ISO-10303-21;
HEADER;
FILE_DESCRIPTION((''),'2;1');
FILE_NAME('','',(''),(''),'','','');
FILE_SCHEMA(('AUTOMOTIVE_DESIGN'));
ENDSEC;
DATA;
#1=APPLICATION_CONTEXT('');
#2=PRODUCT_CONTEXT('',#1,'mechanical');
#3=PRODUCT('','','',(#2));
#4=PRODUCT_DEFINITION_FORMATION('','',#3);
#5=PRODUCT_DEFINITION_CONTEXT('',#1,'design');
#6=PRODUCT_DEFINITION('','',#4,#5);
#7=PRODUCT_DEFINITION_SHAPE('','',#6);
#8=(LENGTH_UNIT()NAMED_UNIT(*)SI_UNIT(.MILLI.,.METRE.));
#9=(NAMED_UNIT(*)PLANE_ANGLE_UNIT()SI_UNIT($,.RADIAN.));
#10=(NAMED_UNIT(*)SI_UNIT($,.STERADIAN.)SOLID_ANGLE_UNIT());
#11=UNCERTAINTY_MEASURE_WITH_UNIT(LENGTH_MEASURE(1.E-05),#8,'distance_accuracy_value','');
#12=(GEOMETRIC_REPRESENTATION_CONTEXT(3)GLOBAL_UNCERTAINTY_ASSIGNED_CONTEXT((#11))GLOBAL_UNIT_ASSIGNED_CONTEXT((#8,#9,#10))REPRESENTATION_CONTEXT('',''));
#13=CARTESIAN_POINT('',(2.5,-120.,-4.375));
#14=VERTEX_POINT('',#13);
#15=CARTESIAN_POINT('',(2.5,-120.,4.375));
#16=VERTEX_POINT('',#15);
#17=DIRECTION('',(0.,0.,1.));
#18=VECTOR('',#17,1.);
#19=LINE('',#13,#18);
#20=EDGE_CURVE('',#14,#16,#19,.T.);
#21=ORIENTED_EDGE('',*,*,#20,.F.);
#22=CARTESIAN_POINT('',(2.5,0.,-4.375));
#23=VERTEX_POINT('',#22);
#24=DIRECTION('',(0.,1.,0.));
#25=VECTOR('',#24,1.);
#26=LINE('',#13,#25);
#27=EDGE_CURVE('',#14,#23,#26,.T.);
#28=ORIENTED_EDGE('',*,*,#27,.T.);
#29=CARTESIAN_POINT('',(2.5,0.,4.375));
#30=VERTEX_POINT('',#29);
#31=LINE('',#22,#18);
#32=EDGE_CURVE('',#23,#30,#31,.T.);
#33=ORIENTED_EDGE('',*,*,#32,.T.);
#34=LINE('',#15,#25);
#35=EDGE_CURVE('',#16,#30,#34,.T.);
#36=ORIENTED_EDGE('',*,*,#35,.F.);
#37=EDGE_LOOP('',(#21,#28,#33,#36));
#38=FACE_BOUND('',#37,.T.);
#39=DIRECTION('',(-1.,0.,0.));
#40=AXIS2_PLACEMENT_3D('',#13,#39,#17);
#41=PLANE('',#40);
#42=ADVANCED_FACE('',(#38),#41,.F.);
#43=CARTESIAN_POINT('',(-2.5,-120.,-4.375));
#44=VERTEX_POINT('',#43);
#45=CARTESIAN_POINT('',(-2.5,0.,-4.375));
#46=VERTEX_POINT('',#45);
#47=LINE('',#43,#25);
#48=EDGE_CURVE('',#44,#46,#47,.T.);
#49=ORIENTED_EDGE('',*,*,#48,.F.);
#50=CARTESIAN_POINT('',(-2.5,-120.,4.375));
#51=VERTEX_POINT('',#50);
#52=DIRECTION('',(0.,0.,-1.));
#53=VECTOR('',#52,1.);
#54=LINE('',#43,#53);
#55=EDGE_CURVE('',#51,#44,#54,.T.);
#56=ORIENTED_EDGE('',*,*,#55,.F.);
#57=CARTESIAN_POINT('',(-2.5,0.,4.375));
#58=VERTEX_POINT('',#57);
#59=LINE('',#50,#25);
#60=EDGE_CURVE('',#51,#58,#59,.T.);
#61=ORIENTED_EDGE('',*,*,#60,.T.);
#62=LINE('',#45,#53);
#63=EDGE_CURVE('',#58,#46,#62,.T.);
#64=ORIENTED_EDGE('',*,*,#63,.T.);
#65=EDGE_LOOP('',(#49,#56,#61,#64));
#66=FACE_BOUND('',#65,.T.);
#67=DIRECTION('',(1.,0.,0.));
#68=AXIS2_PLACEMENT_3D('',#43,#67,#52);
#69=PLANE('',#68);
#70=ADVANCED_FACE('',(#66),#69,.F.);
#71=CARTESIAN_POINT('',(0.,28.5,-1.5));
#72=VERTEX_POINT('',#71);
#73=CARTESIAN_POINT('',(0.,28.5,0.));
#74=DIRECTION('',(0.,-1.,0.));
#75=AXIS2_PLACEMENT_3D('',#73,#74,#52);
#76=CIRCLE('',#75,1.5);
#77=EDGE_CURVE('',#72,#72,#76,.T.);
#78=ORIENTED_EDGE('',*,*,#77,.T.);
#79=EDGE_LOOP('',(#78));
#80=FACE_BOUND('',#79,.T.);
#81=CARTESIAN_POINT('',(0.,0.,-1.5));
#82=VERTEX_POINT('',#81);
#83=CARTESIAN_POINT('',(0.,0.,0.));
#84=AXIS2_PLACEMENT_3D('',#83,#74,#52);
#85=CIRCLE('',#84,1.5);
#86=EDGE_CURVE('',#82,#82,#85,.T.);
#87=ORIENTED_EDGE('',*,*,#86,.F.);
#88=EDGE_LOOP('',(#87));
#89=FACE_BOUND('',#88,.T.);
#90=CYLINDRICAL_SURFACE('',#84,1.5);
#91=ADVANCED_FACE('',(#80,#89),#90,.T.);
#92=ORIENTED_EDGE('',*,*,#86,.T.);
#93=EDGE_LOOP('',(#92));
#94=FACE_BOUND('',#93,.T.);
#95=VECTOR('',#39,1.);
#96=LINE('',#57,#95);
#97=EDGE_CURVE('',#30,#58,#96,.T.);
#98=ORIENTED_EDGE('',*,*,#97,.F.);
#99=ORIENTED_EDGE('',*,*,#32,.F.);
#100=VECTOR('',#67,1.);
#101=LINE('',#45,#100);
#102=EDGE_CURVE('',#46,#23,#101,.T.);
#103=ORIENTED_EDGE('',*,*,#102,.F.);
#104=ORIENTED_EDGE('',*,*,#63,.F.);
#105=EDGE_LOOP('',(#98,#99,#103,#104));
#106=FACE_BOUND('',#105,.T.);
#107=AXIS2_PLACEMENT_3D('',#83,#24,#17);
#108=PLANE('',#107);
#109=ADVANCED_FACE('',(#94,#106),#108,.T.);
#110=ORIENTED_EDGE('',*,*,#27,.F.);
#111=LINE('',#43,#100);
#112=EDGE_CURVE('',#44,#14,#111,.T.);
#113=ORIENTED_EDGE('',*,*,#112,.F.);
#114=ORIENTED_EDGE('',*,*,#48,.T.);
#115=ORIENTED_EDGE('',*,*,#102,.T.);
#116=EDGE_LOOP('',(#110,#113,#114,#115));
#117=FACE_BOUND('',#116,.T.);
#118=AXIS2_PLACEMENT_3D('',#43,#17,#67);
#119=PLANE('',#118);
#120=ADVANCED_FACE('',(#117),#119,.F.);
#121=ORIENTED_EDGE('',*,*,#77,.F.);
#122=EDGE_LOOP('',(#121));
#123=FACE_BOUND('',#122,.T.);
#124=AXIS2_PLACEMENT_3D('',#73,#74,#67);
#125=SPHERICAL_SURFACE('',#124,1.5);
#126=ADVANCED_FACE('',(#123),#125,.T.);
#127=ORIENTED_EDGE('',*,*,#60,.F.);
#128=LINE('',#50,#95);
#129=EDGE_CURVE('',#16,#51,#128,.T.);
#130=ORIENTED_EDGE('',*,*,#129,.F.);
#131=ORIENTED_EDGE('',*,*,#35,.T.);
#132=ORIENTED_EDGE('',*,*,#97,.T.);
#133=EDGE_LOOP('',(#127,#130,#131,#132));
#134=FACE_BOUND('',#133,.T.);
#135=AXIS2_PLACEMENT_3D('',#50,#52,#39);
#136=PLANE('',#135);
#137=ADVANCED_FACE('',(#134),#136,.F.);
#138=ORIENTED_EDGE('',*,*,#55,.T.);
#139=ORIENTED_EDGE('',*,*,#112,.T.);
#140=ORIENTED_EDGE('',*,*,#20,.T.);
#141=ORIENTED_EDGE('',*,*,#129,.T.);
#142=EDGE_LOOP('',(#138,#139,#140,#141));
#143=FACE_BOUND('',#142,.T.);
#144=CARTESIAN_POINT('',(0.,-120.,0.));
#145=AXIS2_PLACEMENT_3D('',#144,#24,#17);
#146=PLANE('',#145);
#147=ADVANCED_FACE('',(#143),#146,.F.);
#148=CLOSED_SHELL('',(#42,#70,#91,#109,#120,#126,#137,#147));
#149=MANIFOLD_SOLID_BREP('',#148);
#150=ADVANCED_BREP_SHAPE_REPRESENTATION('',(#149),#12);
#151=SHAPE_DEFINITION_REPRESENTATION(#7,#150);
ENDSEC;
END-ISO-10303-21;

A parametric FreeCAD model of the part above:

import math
import FreeCAD as App
import Part
import Sketcher
from FreeCAD import Vector
Q = App.Units.Quantity

doc = App.newDocument("Part")
params = doc.addObject("Spreadsheet::Sheet", "Params")
for row, (alias, value) in enumerate([
    ("sketch1_radius", "1.5 mm"),
    ("sketch1_height", "30 mm"),
    ("revolution_angle", "360 deg"),
    ("sketch2_width", "5 mm"),
    ("sketch2_height", "8.75 mm"),
    ("pad1_length", "120 mm"),
], start=1):
    params.set(f"A{row}", alias)
    params.set(f"B{row}", "=" + value)
    params.setAlias(f"B{row}", alias)

body = doc.addObject("PartDesign::Body", "Body")

sketch1 = body.newObject("Sketcher::SketchObject", "Sketch")
sketch1.AttachmentSupport = (doc.getObject("XY_Plane"), [""])
sketch1.MapMode = "FlatFace"
sketch1.addGeometry([
    Part.LineSegment(Vector(-1.5, 28.5, 0), Vector(-1.5, 0, 0)),
    Part.LineSegment(Vector(-1.5, 0, 0), Vector(0, 0, 0)),
    Part.LineSegment(Vector(0, 0, 0), Vector(0, 30, 0)),
    Part.ArcOfCircle(Part.Circle(Vector(0, 28.5, 0), Vector(0, 0, 1), 1.5), math.radians(90), math.radians(180)),
], False)
sketch1.addConstraint([
    Sketcher.Constraint("Coincident", 0, 2, 1, 1),
    Sketcher.Constraint("Coincident", 1, 2, 2, 1),
    Sketcher.Constraint("Coincident", 2, 2, 3, 1),
    Sketcher.Constraint("Tangent", 3, 2, 0, 1),
    Sketcher.Constraint("Vertical", 0),
    Sketcher.Constraint("Horizontal", 1),
    Sketcher.Constraint("Vertical", 2),
    Sketcher.Constraint("Coincident", 1, 2, -1, 1),
    Sketcher.Constraint("PointOnObject", 3, 3, -2),
    Sketcher.Constraint("Radius", 3, Q("1.5 mm")),
    Sketcher.Constraint("DistanceY", 2, 1, 2, 2, Q("30 mm")),
])
sketch1.setExpression("Constraints[9]", "Params.sketch1_radius")
sketch1.setExpression("Constraints[10]", "Params.sketch1_height")
revolution = body.newObject("PartDesign::Revolution", "Revolution")
revolution.Profile = sketch1
revolution.ReferenceAxis = (sketch1, ["V_Axis"])
revolution.setExpression("Angle", "Params.revolution_angle")

sketch2 = body.newObject("Sketcher::SketchObject", "Sketch001")
sketch2.AttachmentSupport = (doc.getObject("XZ_Plane"), [""])
sketch2.MapMode = "FlatFace"
sketch2.addGeometry([
    Part.LineSegment(Vector(-2, 4, 0), Vector(-2, -4, 0)),
    Part.LineSegment(Vector(-2, -4, 0), Vector(2, -4, 0)),
    Part.LineSegment(Vector(2, -4, 0), Vector(2, 4, 0)),
    Part.LineSegment(Vector(2, 4, 0), Vector(-2, 4, 0)),
], False)
sketch2.addConstraint([
    Sketcher.Constraint("Coincident", 0, 2, 1, 1),
    Sketcher.Constraint("Coincident", 1, 2, 2, 1),
    Sketcher.Constraint("Coincident", 2, 2, 3, 1),
    Sketcher.Constraint("Coincident", 3, 2, 0, 1),
    Sketcher.Constraint("Vertical", 0),
    Sketcher.Constraint("Horizontal", 1),
    Sketcher.Constraint("Vertical", 2),
    Sketcher.Constraint("Horizontal", 3),
    Sketcher.Constraint("Symmetric", 0, 2, 2, 2, -1, 1),
    Sketcher.Constraint("DistanceX", 1, 1, 1, 2, Q("5 mm")),
    Sketcher.Constraint("DistanceY", 0, 2, 0, 1, Q("8.75 mm")),
])
sketch2.setExpression("Constraints[9]", "Params.sketch2_width")
sketch2.setExpression("Constraints[10]", "Params.sketch2_height")
pad1 = body.newObject("PartDesign::Pad", "Pad")
pad1.Profile = sketch2
pad1.setExpression("Length", "Params.pad1_length")

doc.recompute()
